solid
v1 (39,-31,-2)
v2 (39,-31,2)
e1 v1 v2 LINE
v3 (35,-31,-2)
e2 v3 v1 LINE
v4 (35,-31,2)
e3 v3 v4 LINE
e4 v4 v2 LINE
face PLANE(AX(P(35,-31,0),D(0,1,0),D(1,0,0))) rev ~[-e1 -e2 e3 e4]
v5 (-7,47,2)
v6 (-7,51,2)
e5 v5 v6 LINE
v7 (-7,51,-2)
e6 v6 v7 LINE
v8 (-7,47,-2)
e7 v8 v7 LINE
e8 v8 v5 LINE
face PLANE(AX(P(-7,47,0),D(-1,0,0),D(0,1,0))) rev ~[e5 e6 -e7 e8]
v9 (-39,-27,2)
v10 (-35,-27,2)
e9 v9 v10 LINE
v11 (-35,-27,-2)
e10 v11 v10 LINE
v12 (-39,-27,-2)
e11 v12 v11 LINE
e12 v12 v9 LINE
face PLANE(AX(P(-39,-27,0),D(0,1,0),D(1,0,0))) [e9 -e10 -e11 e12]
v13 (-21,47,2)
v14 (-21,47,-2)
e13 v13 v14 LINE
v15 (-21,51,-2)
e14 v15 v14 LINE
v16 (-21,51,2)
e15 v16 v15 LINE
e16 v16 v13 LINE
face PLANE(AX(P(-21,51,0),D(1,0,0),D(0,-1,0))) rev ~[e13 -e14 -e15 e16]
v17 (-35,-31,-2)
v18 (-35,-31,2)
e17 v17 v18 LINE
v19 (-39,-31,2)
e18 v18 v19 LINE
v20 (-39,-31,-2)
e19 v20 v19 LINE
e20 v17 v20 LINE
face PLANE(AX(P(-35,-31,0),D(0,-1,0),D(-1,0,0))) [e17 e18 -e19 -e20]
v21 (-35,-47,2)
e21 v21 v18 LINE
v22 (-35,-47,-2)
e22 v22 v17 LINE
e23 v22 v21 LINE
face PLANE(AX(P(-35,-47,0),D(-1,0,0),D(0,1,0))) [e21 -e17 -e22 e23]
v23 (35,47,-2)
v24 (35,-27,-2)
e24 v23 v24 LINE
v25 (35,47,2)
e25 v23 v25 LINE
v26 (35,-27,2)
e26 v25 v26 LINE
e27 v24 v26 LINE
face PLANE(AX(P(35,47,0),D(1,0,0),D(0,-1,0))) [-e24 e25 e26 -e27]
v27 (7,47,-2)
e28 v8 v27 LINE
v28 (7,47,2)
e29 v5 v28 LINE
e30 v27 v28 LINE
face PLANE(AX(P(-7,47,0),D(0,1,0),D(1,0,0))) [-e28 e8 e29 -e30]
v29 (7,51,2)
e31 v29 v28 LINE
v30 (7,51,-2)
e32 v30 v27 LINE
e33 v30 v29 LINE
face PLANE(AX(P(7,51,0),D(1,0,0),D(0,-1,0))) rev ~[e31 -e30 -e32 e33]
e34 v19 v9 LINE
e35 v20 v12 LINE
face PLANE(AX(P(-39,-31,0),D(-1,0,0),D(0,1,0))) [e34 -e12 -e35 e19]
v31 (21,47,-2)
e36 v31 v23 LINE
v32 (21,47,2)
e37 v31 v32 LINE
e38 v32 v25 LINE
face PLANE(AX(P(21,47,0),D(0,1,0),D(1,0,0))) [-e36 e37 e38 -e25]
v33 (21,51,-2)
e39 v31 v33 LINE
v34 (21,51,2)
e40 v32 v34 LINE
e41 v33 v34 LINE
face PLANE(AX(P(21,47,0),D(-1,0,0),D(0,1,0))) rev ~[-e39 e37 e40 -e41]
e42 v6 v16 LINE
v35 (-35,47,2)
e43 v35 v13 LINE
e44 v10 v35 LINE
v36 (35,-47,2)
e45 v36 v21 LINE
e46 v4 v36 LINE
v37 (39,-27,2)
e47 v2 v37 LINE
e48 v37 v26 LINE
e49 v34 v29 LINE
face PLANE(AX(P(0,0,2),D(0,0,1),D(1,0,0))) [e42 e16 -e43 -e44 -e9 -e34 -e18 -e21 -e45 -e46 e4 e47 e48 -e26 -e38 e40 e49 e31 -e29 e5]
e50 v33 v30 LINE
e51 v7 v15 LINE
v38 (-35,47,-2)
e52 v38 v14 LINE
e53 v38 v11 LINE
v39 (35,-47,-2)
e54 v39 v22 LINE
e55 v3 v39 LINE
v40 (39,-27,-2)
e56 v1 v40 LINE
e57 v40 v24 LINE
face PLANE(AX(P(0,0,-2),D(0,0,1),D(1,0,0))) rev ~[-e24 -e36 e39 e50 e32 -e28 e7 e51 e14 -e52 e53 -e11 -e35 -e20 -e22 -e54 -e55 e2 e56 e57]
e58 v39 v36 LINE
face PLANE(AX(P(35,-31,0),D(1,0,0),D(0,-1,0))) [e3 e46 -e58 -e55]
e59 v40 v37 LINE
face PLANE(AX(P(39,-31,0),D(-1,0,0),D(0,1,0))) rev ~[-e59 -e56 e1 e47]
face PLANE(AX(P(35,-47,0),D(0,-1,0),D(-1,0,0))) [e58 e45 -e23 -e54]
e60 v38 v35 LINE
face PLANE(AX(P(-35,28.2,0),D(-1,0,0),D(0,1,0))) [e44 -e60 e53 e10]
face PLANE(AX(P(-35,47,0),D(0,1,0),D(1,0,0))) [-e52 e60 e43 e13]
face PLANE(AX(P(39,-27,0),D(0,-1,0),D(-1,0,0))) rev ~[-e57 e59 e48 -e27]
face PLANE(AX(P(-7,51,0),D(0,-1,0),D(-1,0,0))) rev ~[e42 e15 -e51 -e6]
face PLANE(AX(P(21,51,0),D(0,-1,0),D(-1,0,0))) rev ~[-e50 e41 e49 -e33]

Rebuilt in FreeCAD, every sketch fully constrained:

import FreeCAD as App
import Part
import Sketcher
from FreeCAD import Vector
Q = App.Units.Quantity


def add_polygon(sketch, points):
    """Adds a closed chain of lines whose ends are joined by coincident constraints."""
    first, n = sketch.GeometryCount, len(points)
    for a, b in zip(points, points[1:] + points[:1]):
        sketch.addGeometry(Part.LineSegment(App.Vector(*a, 0), App.Vector(*b, 0)), False)
    for i in range(n):
        sketch.addConstraint(Sketcher.Constraint("Coincident", first + i, 2, first + (i + 1) % n, 1))

doc = App.newDocument("Part")
body = doc.addObject("PartDesign::Body", "Body")

sketch1 = body.newObject("Sketcher::SketchObject", "Sketch")
sketch1.AttachmentSupport = (doc.getObject("XY_Plane"), [""])
sketch1.MapMode = "FlatFace"
add_polygon(sketch1, [(-21, 47), (-35, 47), (-35, -27), (-39, -27), (-39, -31), (-35, -31), (-35, -47), (35, -47), (35, -31), (39, -31), (39, -27), (35, -27), (35, 47), (21, 47), (21, 51), (7, 51), (7, 47), (-7, 47), (-7, 51), (-21, 51)])
sketch1.addConstraint([
    Sketcher.Constraint("Horizontal", 0),
    Sketcher.Constraint("Vertical", 1),
    Sketcher.Constraint("Horizontal", 2),
    Sketcher.Constraint("Vertical", 3),
    Sketcher.Constraint("Horizontal", 4),
    Sketcher.Constraint("Vertical", 5),
    Sketcher.Constraint("Horizontal", 6),
    Sketcher.Constraint("Vertical", 7),
    Sketcher.Constraint("Horizontal", 8),
    Sketcher.Constraint("Vertical", 9),
    Sketcher.Constraint("Horizontal", 10),
    Sketcher.Constraint("Vertical", 11),
    Sketcher.Constraint("Horizontal", 12),
    Sketcher.Constraint("Vertical", 13),
    Sketcher.Constraint("Horizontal", 14),
    Sketcher.Constraint("Vertical", 15),
    Sketcher.Constraint("Horizontal", 16),
    Sketcher.Constraint("Vertical", 17),
    Sketcher.Constraint("Horizontal", 18),
    Sketcher.Constraint("Vertical", 19),
    Sketcher.Constraint("Symmetric", 0, 2, 6, 2, -1, 1),
    Sketcher.Constraint("Symmetric", 5, 2, 11, 2, -1, 1),
    Sketcher.Constraint("Symmetric", 4, 2, 7, 2, -2),
    Sketcher.Constraint("Symmetric", 2, 2, 9, 2, -2),
    Sketcher.Constraint("Symmetric", 14, 2, 17, 2, -2),
    Sketcher.Constraint("Horizontal", 12, 2, 15, 2),
    Sketcher.Constraint("Equal", 0, 12),
    Sketcher.Constraint("Equal", 12, 14),
    Sketcher.Constraint("Equal", 14, 16),
    Sketcher.Constraint("Equal", 10, 3),
    Sketcher.Constraint("Equal", 9, 13),
    Sketcher.Constraint("DistanceX", 0, 2, 0, 1, Q("14 mm")),
    Sketcher.Constraint("DistanceX", 2, 2, 2, 1, Q("4 mm")),
    Sketcher.Constraint("DistanceY", 3, 2, 0, 2, Q("78 mm")),
    Sketcher.Constraint("DistanceY", 5, 2, 0, 2, Q("94 mm")),
])
pad1 = body.newObject("PartDesign::Pad", "Pad")
pad1.Profile = sketch1
pad1.Length = 4
pad1.Midplane = True

doc.recompute()
